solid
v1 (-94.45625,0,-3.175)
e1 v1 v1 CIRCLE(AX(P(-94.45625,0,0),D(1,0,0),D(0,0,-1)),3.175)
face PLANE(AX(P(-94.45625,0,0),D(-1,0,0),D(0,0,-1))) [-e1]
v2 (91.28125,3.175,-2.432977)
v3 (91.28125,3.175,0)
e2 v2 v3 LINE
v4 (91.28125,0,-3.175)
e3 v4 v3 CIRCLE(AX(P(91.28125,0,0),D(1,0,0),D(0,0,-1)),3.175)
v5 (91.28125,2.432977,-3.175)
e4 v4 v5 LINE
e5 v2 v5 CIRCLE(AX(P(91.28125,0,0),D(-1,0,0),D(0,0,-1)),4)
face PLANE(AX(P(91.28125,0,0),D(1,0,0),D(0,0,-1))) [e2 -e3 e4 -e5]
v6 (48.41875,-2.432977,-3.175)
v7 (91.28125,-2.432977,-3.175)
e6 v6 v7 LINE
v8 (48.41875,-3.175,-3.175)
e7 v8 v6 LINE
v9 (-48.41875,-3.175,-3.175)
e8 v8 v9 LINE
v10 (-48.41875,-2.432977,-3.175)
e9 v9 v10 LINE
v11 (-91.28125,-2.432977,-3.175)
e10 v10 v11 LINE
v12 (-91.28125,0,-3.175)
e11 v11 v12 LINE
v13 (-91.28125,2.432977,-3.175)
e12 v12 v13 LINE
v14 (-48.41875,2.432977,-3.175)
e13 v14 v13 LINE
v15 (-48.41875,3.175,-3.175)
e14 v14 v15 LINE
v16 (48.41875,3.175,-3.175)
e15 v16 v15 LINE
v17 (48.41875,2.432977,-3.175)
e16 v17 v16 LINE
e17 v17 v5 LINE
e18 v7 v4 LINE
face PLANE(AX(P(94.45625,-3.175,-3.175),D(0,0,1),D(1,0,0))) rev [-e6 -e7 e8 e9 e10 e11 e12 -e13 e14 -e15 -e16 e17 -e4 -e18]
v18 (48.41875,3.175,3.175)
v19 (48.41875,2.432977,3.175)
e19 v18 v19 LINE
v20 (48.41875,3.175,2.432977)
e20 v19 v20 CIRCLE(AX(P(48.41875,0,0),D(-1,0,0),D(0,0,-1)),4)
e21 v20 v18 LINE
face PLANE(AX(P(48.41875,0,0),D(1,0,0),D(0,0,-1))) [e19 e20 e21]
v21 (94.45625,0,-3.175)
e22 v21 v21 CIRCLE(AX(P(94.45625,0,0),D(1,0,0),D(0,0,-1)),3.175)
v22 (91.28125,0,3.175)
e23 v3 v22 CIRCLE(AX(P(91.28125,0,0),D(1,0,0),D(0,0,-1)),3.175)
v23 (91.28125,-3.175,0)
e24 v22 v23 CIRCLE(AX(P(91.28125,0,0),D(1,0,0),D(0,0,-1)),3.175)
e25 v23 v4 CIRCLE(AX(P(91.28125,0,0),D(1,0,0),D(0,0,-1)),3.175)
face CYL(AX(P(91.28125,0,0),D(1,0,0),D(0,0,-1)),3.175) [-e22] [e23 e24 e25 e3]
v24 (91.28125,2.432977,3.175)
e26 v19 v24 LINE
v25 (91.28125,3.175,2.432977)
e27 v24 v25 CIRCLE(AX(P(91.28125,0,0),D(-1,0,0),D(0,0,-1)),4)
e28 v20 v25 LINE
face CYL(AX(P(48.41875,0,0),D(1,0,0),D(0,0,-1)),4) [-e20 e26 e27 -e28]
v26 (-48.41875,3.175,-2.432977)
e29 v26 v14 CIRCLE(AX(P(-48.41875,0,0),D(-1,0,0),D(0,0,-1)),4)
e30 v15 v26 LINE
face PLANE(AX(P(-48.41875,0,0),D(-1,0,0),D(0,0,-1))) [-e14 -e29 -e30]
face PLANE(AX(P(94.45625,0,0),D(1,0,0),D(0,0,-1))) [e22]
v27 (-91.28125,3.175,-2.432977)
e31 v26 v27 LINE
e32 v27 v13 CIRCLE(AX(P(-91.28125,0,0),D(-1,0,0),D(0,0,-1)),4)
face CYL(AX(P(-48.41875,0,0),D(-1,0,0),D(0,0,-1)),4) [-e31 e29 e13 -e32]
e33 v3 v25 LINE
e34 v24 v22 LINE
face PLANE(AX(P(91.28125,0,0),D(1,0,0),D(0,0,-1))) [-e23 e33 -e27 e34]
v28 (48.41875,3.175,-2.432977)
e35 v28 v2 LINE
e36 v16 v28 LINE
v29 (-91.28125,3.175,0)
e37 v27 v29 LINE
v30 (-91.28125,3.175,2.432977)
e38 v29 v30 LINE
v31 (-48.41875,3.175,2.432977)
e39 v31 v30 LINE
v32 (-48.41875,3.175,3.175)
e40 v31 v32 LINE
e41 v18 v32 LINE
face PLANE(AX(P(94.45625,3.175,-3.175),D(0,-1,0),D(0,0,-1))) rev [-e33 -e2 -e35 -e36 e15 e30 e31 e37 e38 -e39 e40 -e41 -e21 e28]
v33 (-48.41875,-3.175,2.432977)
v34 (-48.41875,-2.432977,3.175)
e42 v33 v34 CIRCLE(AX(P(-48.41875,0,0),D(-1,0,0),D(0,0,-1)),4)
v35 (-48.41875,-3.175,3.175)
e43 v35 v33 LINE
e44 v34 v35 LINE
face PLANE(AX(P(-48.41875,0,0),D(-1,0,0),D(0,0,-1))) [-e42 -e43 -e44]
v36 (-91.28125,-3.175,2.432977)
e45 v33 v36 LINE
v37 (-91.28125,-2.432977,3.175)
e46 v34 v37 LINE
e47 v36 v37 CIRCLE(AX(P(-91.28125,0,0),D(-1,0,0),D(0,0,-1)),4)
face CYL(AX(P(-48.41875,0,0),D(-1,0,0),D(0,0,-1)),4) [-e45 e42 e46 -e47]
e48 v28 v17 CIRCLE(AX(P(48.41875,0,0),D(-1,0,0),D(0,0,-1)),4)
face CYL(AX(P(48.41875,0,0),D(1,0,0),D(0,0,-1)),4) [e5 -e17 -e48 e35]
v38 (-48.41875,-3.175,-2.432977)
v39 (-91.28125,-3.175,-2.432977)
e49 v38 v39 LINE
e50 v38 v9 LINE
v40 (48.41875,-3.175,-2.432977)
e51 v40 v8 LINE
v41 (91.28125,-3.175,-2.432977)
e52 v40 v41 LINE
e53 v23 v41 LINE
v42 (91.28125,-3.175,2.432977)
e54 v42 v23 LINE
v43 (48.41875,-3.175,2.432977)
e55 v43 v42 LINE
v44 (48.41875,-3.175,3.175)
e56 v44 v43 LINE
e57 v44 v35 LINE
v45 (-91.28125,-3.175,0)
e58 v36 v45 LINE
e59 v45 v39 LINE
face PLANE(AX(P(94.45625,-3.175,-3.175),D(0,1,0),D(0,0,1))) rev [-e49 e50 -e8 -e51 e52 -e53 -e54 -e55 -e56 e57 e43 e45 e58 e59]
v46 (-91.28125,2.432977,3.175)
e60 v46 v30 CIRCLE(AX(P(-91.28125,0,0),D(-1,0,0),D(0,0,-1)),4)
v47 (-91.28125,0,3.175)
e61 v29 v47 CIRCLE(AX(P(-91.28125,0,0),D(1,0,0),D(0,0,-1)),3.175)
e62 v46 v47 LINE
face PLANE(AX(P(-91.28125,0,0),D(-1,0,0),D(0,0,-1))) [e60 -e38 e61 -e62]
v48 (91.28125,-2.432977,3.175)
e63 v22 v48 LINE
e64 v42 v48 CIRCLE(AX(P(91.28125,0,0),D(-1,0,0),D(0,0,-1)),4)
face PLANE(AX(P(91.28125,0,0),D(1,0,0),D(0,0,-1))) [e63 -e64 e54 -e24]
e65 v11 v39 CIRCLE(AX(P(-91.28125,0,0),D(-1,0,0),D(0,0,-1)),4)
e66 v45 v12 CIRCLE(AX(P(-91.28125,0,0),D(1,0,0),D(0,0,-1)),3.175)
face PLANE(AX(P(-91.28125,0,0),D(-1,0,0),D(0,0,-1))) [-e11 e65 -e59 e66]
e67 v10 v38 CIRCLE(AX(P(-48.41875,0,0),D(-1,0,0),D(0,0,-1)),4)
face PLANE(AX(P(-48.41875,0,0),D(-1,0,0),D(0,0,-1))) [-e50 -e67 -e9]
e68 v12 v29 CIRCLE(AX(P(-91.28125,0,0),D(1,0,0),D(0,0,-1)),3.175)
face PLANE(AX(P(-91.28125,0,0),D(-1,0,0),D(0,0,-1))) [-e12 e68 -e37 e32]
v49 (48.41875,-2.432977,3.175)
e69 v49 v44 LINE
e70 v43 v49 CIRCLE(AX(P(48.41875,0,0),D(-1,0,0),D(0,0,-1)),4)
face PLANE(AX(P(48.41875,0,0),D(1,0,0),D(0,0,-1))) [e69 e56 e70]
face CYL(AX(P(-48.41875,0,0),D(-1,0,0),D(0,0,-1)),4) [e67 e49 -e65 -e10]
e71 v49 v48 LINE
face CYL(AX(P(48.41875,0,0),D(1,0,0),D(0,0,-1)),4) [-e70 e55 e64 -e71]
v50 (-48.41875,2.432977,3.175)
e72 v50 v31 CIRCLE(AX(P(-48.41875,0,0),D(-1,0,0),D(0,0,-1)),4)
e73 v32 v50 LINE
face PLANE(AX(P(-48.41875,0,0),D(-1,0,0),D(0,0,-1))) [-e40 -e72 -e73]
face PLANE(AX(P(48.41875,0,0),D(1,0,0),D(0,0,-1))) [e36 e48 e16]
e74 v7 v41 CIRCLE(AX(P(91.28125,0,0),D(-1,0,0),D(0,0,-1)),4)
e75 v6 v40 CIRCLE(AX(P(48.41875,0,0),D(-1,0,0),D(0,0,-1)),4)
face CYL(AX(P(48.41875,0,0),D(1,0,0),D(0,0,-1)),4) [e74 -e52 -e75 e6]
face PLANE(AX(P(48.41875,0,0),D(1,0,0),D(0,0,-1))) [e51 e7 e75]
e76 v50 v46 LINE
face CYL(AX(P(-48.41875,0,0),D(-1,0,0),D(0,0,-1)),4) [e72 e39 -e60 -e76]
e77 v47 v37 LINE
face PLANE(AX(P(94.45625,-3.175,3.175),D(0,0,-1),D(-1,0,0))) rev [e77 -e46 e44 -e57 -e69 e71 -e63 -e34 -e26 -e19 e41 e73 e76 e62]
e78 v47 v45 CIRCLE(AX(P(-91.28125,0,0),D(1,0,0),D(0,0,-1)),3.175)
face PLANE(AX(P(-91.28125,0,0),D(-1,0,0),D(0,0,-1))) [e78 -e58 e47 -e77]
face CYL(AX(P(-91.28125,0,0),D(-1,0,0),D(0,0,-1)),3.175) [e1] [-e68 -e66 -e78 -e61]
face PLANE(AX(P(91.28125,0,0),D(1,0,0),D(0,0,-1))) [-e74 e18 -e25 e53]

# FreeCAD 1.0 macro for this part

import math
import FreeCAD as App
import Part
import Sketcher
from FreeCAD import Vector
Q = App.Units.Quantity


def add_polygon(sketch, points):
    """Adds a closed chain of lines whose ends are joined by coincident constraints."""
    first, n = sketch.GeometryCount, len(points)
    for a, b in zip(points, points[1:] + points[:1]):
        sketch.addGeometry(Part.LineSegment(App.Vector(*a, 0), App.Vector(*b, 0)), False)
    for i in range(n):
        sketch.addConstraint(Sketcher.Constraint("Coincident", first + i, 2, first + (i + 1) % n, 1))

doc = App.newDocument("Part")
body = doc.addObject("PartDesign::Body", "Body")

# Sketch on YZ plane
sketch1 = body.newObject("Sketcher::SketchObject", "Sketch")
sketch1.AttachmentSupport = (doc.getObject("YZ_Plane"), [""])
sketch1.MapMode = "FlatFace"
add_polygon(sketch1, [(3, 3), (-3, 3), (-3, -3), (3, -3)])  # lines 0-3
sketch1.addConstraint(Sketcher.Constraint("Horizontal", 0))
sketch1.addConstraint(Sketcher.Constraint("Vertical", 1))
sketch1.addConstraint(Sketcher.Constraint("Horizontal", 2))
sketch1.addConstraint(Sketcher.Constraint("Vertical", 3))
sketch1.addConstraint(Sketcher.Constraint("Symmetric", 0, 2, 2, 2, -1, 1))
sketch1.addConstraint(Sketcher.Constraint("Equal", 2, 1))
sketch1.addConstraint(Sketcher.Constraint("DistanceX", 0, 2, 0, 1, Q("0.25 in")))
pad1 = body.newObject("PartDesign::Pad", "Pad")
pad1.Profile = sketch1
pad1.Length = Q("3.71875 in")

# Sketch on YZ plane
sketch2 = body.newObject("Sketcher::SketchObject", "Sketch001")
sketch2.AttachmentSupport = (doc.getObject("YZ_Plane"), [""])
sketch2.MapMode = "FlatFace"
sketch2.AttachmentOffset = App.Placement(Vector(0, 0, 3.71875 * 25.4), App.Rotation())
add_polygon(sketch2, [(4, 4), (-4, 4), (-4, -4), (4, -4)])  # lines 0-3
sketch2.addGeometry(Part.Circle(Vector(0, 0, 0), Vector(0, 0, 1), 3.2), False)  # 4
sketch2.addConstraint(Sketcher.Constraint("Horizontal", 0))
sketch2.addConstraint(Sketcher.Constraint("Vertical", 1))
sketch2.addConstraint(Sketcher.Constraint("Horizontal", 2))
sketch2.addConstraint(Sketcher.Constraint("Vertical", 3))
sketch2.addConstraint(Sketcher.Constraint("Coincident", 4, 3, -1, 1))
sketch2.addConstraint(Sketcher.Constraint("Symmetric", 0, 2, 2, 2, -1, 1))
sketch2.addConstraint(Sketcher.Constraint("Equal", 2, 1))
sketch2.addConstraint(Sketcher.Constraint("Diameter", 4, Q("0.25 in")))
sketch2.addConstraint(Sketcher.Constraint("DistanceX", 0, 2, 0, 1, Q("0.3125 in")))
pocket1 = body.newObject("PartDesign::Pocket", "Pocket")
pocket1.Profile = sketch2
pocket1.Length = Q("0.125 in")

# Sketch on YZ plane
sketch3 = body.newObject("Sketcher::SketchObject", "Sketch002")
sketch3.AttachmentSupport = (doc.getObject("YZ_Plane"), [""])
sketch3.MapMode = "FlatFace"
sketch3.AttachmentOffset = App.Placement(Vector(0, 0, 3.59375 * 25.4), App.Rotation())
sketch3.addGeometry(Part.LineSegment(Vector(-2.4, 3.2, 0), Vector(-3.2, 3.2, 0)), False)
sketch3.addGeometry(Part.LineSegment(Vector(-3.2, 3.2, 0), Vector(-3.2, 2.4, 0)), False)
sketch3.addGeometry(Part.ArcOfCircle(Part.Circle(Vector(0, 0, 0), Vector(0, 0, 1), 4), math.radians(127.46), math.radians(142.54)), False)
sketch3.addGeometry(Part.LineSegment(Vector(-3.2, -2.4, 0), Vector(-3.2, -3.2, 0)), False)
sketch3.addGeometry(Part.LineSegment(Vector(-3.2, -3.2, 0), Vector(-2.4, -3.2, 0)), False)
sketch3.addGeometry(Part.ArcOfCircle(Part.Circle(Vector(0, 0, 0), Vector(0, 0, 1), 4), math.radians(-142.54), math.radians(-127.46)), False)
sketch3.addGeometry(Part.LineSegment(Vector(2.4, -3.2, 0), Vector(3.2, -3.2, 0)), False)
sketch3.addGeometry(Part.LineSegment(Vector(3.2, -3.2, 0), Vector(3.2, -2.4, 0)), False)
sketch3.addGeometry(Part.ArcOfCircle(Part.Circle(Vector(0, 0, 0), Vector(0, 0, 1), 4), math.radians(-52.54), math.radians(-37.46)), False)
sketch3.addGeometry(Part.LineSegment(Vector(3.2, 3.2, 0), Vector(2.4, 3.2, 0)), False)
sketch3.addGeometry(Part.ArcOfCircle(Part.Circle(Vector(0, 0, 0), Vector(0, 0, 1), 4), math.radians(37.46), math.radians(52.54)), False)
sketch3.addGeometry(Part.LineSegment(Vector(3.2, 2.4, 0), Vector(3.2, 3.2, 0)), False)
sketch3.addConstraint(Sketcher.Constraint("Coincident", 0, 2, 1, 1))
sketch3.addConstraint(Sketcher.Constraint("Coincident", 1, 2, 2, 2))
sketch3.addConstraint(Sketcher.Constraint("Coincident", 2, 1, 0, 1))
sketch3.addConstraint(Sketcher.Constraint("Coincident", 3, 2, 4, 1))
sketch3.addConstraint(Sketcher.Constraint("Coincident", 4, 2, 5, 2))
sketch3.addConstraint(Sketcher.Constraint("Coincident", 5, 1, 3, 1))
sketch3.addConstraint(Sketcher.Constraint("Coincident", 6, 2, 7, 1))
sketch3.addConstraint(Sketcher.Constraint("Coincident", 7, 2, 8, 2))
sketch3.addConstraint(Sketcher.Constraint("Coincident", 8, 1, 6, 1))
sketch3.addConstraint(Sketcher.Constraint("Coincident", 9, 2, 10, 2))
sketch3.addConstraint(Sketcher.Constraint("Coincident", 10, 1, 11, 1))
sketch3.addConstraint(Sketcher.Constraint("Coincident", 11, 2, 9, 1))
sketch3.addConstraint(Sketcher.Constraint("Horizontal", 0))
sketch3.addConstraint(Sketcher.Constraint("Vertical", 1))
sketch3.addConstraint(Sketcher.Constraint("Vertical", 3))
sketch3.addConstraint(Sketcher.Constraint("Horizontal", 4))
sketch3.addConstraint(Sketcher.Constraint("Horizontal", 6))
sketch3.addConstraint(Sketcher.Constraint("Vertical", 7))
sketch3.addConstraint(Sketcher.Constraint("Horizontal", 9))
sketch3.addConstraint(Sketcher.Constraint("Vertical", 11))
sketch3.addConstraint(Sketcher.Constraint("Coincident", 2, 3, -1, 1))
sketch3.addConstraint(Sketcher.Constraint("Coincident", 5, 3, -1, 1))
sketch3.addConstraint(Sketcher.Constraint("Coincident", 8, 3, -1, 1))
sketch3.addConstraint(Sketcher.Constraint("Coincident", 10, 3, -1, 1))
sketch3.addConstraint(Sketcher.Constraint("Equal", 2, 5))
sketch3.addConstraint(Sketcher.Constraint("Equal", 5, 8))
sketch3.addConstraint(Sketcher.Constraint("Equal", 8, 10))
sketch3.addConstraint(Sketcher.Constraint("Symmetric", 0, 2, 6, 2, -1, 1))
sketch3.addConstraint(Sketcher.Constraint("Symmetric", 3, 2, 11, 2, -1, 1))
sketch3.addConstraint(Sketcher.Constraint("Symmetric", 3, 2, 6, 2, -2))
sketch3.addConstraint(Sketcher.Constraint("Equal", 9, 1))
sketch3.addConstraint(Sketcher.Constraint("Radius", 2, 4.0))
sketch3.addConstraint(Sketcher.Constraint("DistanceX", 0, 2, -1, 1, Q("0.125 in")))
pocket2 = body.newObject("PartDesign::Pocket", "Pocket001")
pocket2.Profile = sketch3
pocket2.Length = Q("1.6875 in")
body2 = doc.addObject("PartDesign::Body", "Body001")
doc.recompute()

body2.BaseFeature = body
doc.recompute()

mirroring = doc.addObject("Part::Mirroring", "Mirroring")
mirroring.Source = body
mirroring.Base = Vector(0, 0, 0)
mirroring.Normal = Vector(1, 0, 0)
body3 = doc.addObject("PartDesign::Body", "Body002")
body3.BaseFeature = mirroring
boolean = body2.newObject("PartDesign::Boolean", "Boolean")
boolean.Type = "Fuse"
boolean.addObjects([body3])
doc.recompute()
mirroring.Visibility = False

doc.recompute()
